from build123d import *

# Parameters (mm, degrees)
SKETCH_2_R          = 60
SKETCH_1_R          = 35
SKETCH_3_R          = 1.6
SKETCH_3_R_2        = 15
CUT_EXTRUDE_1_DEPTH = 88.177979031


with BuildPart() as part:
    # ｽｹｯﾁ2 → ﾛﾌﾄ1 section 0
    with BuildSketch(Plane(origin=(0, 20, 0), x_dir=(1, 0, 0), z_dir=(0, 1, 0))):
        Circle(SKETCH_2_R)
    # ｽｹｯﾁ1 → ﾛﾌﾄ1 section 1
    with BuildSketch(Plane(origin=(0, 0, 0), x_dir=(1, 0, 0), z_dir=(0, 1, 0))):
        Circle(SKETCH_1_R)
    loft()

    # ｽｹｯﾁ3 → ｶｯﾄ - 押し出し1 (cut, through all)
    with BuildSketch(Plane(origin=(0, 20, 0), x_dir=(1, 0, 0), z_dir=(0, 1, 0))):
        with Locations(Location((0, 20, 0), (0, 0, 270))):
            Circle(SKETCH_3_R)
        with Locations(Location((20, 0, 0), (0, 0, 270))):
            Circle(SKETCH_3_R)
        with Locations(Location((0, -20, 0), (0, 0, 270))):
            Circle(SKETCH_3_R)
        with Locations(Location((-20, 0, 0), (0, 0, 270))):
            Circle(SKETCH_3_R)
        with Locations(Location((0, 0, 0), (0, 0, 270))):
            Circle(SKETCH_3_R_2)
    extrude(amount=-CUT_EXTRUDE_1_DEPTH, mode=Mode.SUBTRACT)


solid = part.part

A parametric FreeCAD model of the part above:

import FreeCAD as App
import Part
import Sketcher

doc = App.newDocument("Part")
body = doc.addObject("PartDesign::Body", "Body")

sketch1 = body.newObject("Sketcher::SketchObject", "Sketch")
sketch1.AttachmentSupport = (doc.getObject("XZ_Plane"), [""])
sketch1.MapMode = "FlatFace"
sketch1.AttachmentOffset = App.Placement(App.Vector(0, 0, -20), App.Rotation())
sketch1.addGeometry(Part.Circle(App.Vector(0, 0, 0), App.Vector(0, 0, 1), 60), False)
sketch1.addConstraint(Sketcher.Constraint("Coincident", 0, 3, -1, 1))
sketch1.addConstraint(Sketcher.Constraint("Diameter", 0, 120.0))

sketch2 = body.newObject("Sketcher::SketchObject", "Sketch001")
sketch2.AttachmentSupport = (doc.getObject("XZ_Plane"), [""])
sketch2.MapMode = "FlatFace"
sketch2.addGeometry(Part.Circle(App.Vector(0, 0, 0), App.Vector(0, 0, 1), 35), False)
sketch2.addConstraint(Sketcher.Constraint("Coincident", 0, 3, -1, 1))
sketch2.addConstraint(Sketcher.Constraint("Diameter", 0, 70.0))

additiveloft = body.newObject("PartDesign::AdditiveLoft", "AdditiveLoft")
additiveloft.Profile = sketch1
additiveloft.Sections = [sketch2]

sketch3 = body.newObject("Sketcher::SketchObject", "Sketch002")
sketch3.AttachmentSupport = (doc.getObject("XZ_Plane"), [""])
sketch3.MapMode = "FlatFace"
sketch3.AttachmentOffset = App.Placement(App.Vector(0, 0, -20), App.Rotation())
sketch3.addGeometry(Part.Circle(App.Vector(0, -20, 0), App.Vector(0, 0, 1), 1.6), False)
sketch3.addGeometry(Part.Circle(App.Vector(20, 0, 0), App.Vector(0, 0, 1), 1.6), False)
sketch3.addGeometry(Part.Circle(App.Vector(0, 20, 0), App.Vector(0, 0, 1), 1.6), False)
sketch3.addGeometry(Part.Circle(App.Vector(-20, 0, 0), App.Vector(0, 0, 1), 1.6), False)
sketch3.addGeometry(Part.Circle(App.Vector(0, 0, 0), App.Vector(0, 0, 1), 15), False)
sketch3.addConstraint(Sketcher.Constraint("Coincident", 4, 3, -1, 1))
sketch3.addConstraint(Sketcher.Constraint("Equal", 0, 1))
sketch3.addConstraint(Sketcher.Constraint("Equal", 1, 2))
sketch3.addConstraint(Sketcher.Constraint("Equal", 2, 3))
sketch3.addConstraint(Sketcher.Constraint("Symmetric", 0, 3, 2, 3, -1, 1))
sketch3.addConstraint(Sketcher.Constraint("Symmetric", 1, 3, 3, 3, -1, 1))
sketch3.addConstraint(Sketcher.Constraint("PointOnObject", 0, 3, -2))
sketch3.addConstraint(Sketcher.Constraint("PointOnObject", 1, 3, -1))
sketch3.addConstraint(Sketcher.Constraint("Diameter", 4, 30.0))
sketch3.addConstraint(Sketcher.Constraint("Diameter", 0, 3.2))
sketch3.addConstraint(Sketcher.Constraint("DistanceY", 0, 3, -1, 1, 20.0))
sketch3.addConstraint(Sketcher.Constraint("DistanceX", -1, 1, 1, 3, 20.0))
pocket1 = body.newObject("PartDesign::Pocket", "Pocket")
pocket1.Profile = sketch3
pocket1.Type = "ThroughAll"
pocket1.Reversed = True

doc.recompute()
